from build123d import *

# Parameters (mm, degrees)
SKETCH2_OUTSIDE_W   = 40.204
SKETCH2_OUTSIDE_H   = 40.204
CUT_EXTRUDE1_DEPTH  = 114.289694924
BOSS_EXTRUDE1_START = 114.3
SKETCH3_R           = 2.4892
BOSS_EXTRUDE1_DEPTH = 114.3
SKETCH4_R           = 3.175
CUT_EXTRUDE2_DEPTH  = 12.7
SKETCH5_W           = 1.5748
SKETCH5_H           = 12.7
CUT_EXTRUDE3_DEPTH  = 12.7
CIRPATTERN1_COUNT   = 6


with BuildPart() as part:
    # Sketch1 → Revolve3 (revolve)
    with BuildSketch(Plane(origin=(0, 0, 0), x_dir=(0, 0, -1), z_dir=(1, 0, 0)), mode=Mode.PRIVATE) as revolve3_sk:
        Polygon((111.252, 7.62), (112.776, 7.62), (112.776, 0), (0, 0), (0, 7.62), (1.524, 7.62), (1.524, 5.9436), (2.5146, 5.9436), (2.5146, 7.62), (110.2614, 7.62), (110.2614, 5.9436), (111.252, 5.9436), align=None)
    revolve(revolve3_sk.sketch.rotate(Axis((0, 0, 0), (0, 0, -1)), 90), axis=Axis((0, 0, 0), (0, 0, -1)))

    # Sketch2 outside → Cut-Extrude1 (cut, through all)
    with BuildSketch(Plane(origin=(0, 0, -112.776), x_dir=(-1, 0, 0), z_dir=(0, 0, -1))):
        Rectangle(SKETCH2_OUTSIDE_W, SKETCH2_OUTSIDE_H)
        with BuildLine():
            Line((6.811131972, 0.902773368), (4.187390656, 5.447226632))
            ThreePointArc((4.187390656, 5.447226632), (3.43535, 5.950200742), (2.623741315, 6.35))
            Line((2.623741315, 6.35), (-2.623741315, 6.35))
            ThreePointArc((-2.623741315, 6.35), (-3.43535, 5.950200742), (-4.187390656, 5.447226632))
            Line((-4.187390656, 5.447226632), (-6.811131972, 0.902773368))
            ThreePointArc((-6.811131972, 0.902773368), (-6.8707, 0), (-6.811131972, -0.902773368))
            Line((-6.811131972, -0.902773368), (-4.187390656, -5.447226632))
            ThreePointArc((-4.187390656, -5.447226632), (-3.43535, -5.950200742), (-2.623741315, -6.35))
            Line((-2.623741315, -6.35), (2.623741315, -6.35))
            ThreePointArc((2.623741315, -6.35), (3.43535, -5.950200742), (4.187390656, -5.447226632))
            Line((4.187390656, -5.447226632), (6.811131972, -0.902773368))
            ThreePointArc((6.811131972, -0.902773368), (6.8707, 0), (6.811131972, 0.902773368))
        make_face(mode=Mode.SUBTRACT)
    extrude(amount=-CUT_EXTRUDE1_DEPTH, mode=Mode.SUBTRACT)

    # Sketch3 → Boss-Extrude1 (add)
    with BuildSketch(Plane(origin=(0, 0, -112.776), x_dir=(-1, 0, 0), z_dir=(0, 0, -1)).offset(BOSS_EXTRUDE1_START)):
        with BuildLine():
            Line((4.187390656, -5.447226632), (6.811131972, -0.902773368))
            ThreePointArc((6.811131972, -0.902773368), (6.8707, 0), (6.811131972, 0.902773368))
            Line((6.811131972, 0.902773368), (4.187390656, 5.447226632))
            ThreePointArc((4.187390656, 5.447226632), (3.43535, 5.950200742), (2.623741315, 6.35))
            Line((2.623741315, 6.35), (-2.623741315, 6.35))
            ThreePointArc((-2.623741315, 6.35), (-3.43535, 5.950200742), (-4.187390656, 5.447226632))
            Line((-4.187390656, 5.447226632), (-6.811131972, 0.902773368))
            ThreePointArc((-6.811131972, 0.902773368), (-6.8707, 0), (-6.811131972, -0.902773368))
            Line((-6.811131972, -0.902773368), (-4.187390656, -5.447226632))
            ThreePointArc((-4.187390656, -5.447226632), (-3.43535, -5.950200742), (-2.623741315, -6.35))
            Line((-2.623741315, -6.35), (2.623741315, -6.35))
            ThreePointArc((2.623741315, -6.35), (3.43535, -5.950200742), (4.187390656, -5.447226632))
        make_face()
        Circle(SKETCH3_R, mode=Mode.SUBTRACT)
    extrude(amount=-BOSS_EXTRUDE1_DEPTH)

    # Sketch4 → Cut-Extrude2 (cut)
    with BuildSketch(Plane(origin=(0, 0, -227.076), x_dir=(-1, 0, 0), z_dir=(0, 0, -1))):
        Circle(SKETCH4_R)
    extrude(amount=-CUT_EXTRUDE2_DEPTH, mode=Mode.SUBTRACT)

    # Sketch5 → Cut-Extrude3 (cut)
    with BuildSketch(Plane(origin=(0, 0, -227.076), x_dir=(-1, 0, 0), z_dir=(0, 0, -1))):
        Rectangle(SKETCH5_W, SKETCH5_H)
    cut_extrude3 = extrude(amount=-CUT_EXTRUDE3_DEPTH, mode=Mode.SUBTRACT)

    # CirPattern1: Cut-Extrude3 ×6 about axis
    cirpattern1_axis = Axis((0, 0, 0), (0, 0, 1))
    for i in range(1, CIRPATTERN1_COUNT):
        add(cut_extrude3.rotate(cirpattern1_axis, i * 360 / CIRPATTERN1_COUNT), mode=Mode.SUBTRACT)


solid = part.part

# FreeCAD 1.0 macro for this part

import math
import FreeCAD as App
import Part
import Sketcher
Q = App.Units.Quantity

doc = App.newDocument("Part")
body = doc.addObject("PartDesign::Body", "Body")

# Sketch on YZ plane
sketch1 = body.newObject("Sketcher::SketchObject", "Sketch")
sketch1.AttachmentSupport = (doc.getObject("YZ_Plane"), [""])
sketch1.MapMode = "FlatFace"
sketch1.addGeometry([
    Part.LineSegment(App.Vector(7.62, -112.776, 0), App.Vector(7.62, -111.252, 0)),  # 0
    Part.LineSegment(App.Vector(7.62, -111.252, 0), App.Vector(5.9436, -111.252, 0)),  # 1
    Part.LineSegment(App.Vector(5.9436, -111.252, 0), App.Vector(5.9436, -110.2614, 0)),  # 2
    Part.LineSegment(App.Vector(5.9436, -110.2614, 0), App.Vector(7.62, -110.2614, 0)),  # 3
    Part.LineSegment(App.Vector(7.62, -110.2614, 0), App.Vector(7.62, -2.5146, 0)),  # 4
    Part.LineSegment(App.Vector(7.62, -2.5146, 0), App.Vector(5.9436, -2.5146, 0)),  # 5
    Part.LineSegment(App.Vector(5.9436, -2.5146, 0), App.Vector(5.9436, -1.524, 0)),  # 6
    Part.LineSegment(App.Vector(5.9436, -1.524, 0), App.Vector(7.62, -1.524, 0)),  # 7
    Part.LineSegment(App.Vector(7.62, -1.524, 0), App.Vector(7.62, 0, 0)),  # 8
    Part.LineSegment(App.Vector(7.62, 0, 0), App.Vector(0, 0, 0)),  # 9
    Part.LineSegment(App.Vector(0, 0, 0), App.Vector(0, -112.776, 0)),  # 10
    Part.LineSegment(App.Vector(0, -112.776, 0), App.Vector(7.62, -112.776, 0)),  # 11
], False)
sketch1.addConstraint([
    Sketcher.Constraint("Coincident", 0, 2, 1, 1),
    Sketcher.Constraint("Coincident", 1, 2, 2, 1),
    Sketcher.Constraint("Coincident", 2, 2, 3, 1),
    Sketcher.Constraint("Coincident", 3, 2, 4, 1),
    Sketcher.Constraint("Coincident", 4, 2, 5, 1),
    Sketcher.Constraint("Coincident", 5, 2, 6, 1),
    Sketcher.Constraint("Coincident", 6, 2, 7, 1),
    Sketcher.Constraint("Coincident", 7, 2, 8, 1),
    Sketcher.Constraint("Coincident", 8, 2, 9, 1),
    Sketcher.Constraint("Coincident", 9, 2, 10, 1),
    Sketcher.Constraint("Coincident", 10, 2, 11, 1),
    Sketcher.Constraint("Coincident", 11, 2, 0, 1),
    Sketcher.Constraint("Vertical", 0),
    Sketcher.Constraint("Horizontal", 1),
    Sketcher.Constraint("Vertical", 2),
    Sketcher.Constraint("Horizontal", 3),
    Sketcher.Constraint("Vertical", 4),
    Sketcher.Constraint("Horizontal", 5),
    Sketcher.Constraint("Vertical", 6),
    Sketcher.Constraint("Horizontal", 7),
    Sketcher.Constraint("Vertical", 8),
    Sketcher.Constraint("Horizontal", 9),
    Sketcher.Constraint("Vertical", 10),
    Sketcher.Constraint("Horizontal", 11),
    Sketcher.Constraint("Coincident", 9, 2, -1, 1),
    Sketcher.Constraint("Vertical", 0, 2, 3, 2),
    Sketcher.Constraint("Vertical", 2, 2, 5, 2),
    Sketcher.Constraint("Vertical", 4, 2, 7, 2),
    Sketcher.Constraint("Equal", 2, 6),
    Sketcher.Constraint("Equal", 0, 8),
    Sketcher.Constraint("DistanceX", 9, 2, 9, 1, Q("0.3 in")),
    Sketcher.Constraint("DistanceY", 0, 1, 0, 2, Q("0.06 in")),
    Sketcher.Constraint("DistanceY", 10, 2, 10, 1, Q("4.44 in")),
    Sketcher.Constraint("DistanceX", 1, 2, 1, 1, Q("0.066 in")),
    Sketcher.Constraint("DistanceY", 2, 1, 2, 2, Q("0.039 in")),
])
revolution = body.newObject("PartDesign::Revolution", "Revolution")
revolution.Profile = sketch1
revolution.ReferenceAxis = (sketch1, ["V_Axis"])
revolution.Angle = 360

# Sketch on XY plane
sketch2 = body.newObject("Sketcher::SketchObject", "Sketch001")
sketch2.AttachmentSupport = (doc.getObject("XY_Plane"), [""])
sketch2.MapMode = "FlatFace"
sketch2.AttachmentOffset = App.Placement(App.Vector(0, 0, -4.44 * 25.4), App.Rotation())
sketch2.addGeometry([
    Part.LineSegment(App.Vector(20.102, 20.102, 0), App.Vector(20.102, -20.102, 0)),  # 0
    Part.LineSegment(App.Vector(20.102, -20.102, 0), App.Vector(-20.102, -20.102, 0)),  # 1
    Part.LineSegment(App.Vector(-20.102, -20.102, 0), App.Vector(-20.102, 20.102, 0)),  # 2
    Part.LineSegment(App.Vector(-20.102, 20.102, 0), App.Vector(20.102, 20.102, 0)),  # 3
    Part.LineSegment(App.Vector(-4.187391, 5.447227, 0), App.Vector(-6.811132, 0.902773, 0)),  # 4
    Part.ArcOfCircle(Part.Circle(App.Vector(0, 0, 0), App.Vector(0, 0, 1), 6.8707), math.radians(172.449808), math.radians(187.550192)),  # 5
    Part.LineSegment(App.Vector(-6.811132, -0.902773, 0), App.Vector(-4.187391, -5.447227, 0)),  # 6
    Part.ArcOfCircle(Part.Circle(App.Vector(0, 0, 0), App.Vector(0, 0, 1), 6.8707), math.radians(-127.550193), math.radians(-112.449807)),  # 7
    Part.LineSegment(App.Vector(-2.623741, -6.35, 0), App.Vector(2.623741, -6.35, 0)),  # 8
    Part.ArcOfCircle(Part.Circle(App.Vector(0, 0, 0), App.Vector(0, 0, 1), 6.8707), math.radians(-67.550193), math.radians(-52.449807)),  # 9
    Part.LineSegment(App.Vector(4.187391, -5.447227, 0), App.Vector(6.811132, -0.902773, 0)),  # 10
    Part.ArcOfCircle(Part.Circle(App.Vector(0, 0, 0), App.Vector(0, 0, 1), 6.8707), math.radians(-7.550192), math.radians(7.550192)),  # 11
    Part.LineSegment(App.Vector(6.811132, 0.902773, 0), App.Vector(4.187391, 5.447227, 0)),  # 12
    Part.ArcOfCircle(Part.Circle(App.Vector(0, 0, 0), App.Vector(0, 0, 1), 6.8707), math.radians(52.449807), math.radians(67.550193)),  # 13
    Part.LineSegment(App.Vector(2.623741, 6.35, 0), App.Vector(-2.623741, 6.35, 0)),  # 14
    Part.ArcOfCircle(Part.Circle(App.Vector(0, 0, 0), App.Vector(0, 0, 1), 6.8707), math.radians(112.449807), math.radians(127.550193)),  # 15
], False)
sketch2.addConstraint([
    Sketcher.Constraint("Coincident", 0, 2, 1, 1),
    Sketcher.Constraint("Coincident", 1, 2, 2, 1),
    Sketcher.Constraint("Coincident", 2, 2, 3, 1),
    Sketcher.Constraint("Coincident", 3, 2, 0, 1),
    Sketcher.Constraint("Coincident", 4, 2, 5, 1),
    Sketcher.Constraint("Coincident", 5, 2, 6, 1),
    Sketcher.Constraint("Coincident", 6, 2, 7, 1),
    Sketcher.Constraint("Coincident", 7, 2, 8, 1),
    Sketcher.Constraint("Coincident", 8, 2, 9, 1),
    Sketcher.Constraint("Coincident", 9, 2, 10, 1),
    Sketcher.Constraint("Coincident", 10, 2, 11, 1),
    Sketcher.Constraint("Coincident", 11, 2, 12, 1),
    Sketcher.Constraint("Coincident", 12, 2, 13, 1),
    Sketcher.Constraint("Coincident", 13, 2, 14, 1),
    Sketcher.Constraint("Coincident", 14, 2, 15, 1),
    Sketcher.Constraint("Coincident", 15, 2, 4, 1),
    Sketcher.Constraint("Vertical", 0),
    Sketcher.Constraint("Horizontal", 1),
    Sketcher.Constraint("Vertical", 2),
    Sketcher.Constraint("Horizontal", 3),
    Sketcher.Constraint("Horizontal", 8),
    Sketcher.Constraint("Horizontal", 14),
    Sketcher.Constraint("Coincident", 5, 3, -1, 1),
    Sketcher.Constraint("Coincident", 7, 3, -1, 1),
    Sketcher.Constraint("Coincident", 9, 3, -1, 1),
    Sketcher.Constraint("Coincident", 11, 3, -1, 1),
    Sketcher.Constraint("Coincident", 13, 3, -1, 1),
    Sketcher.Constraint("Coincident", 15, 3, -1, 1),
    Sketcher.Constraint("Equal", 5, 7),
    Sketcher.Constraint("Equal", 7, 9),
    Sketcher.Constraint("Equal", 9, 11),
    Sketcher.Constraint("Equal", 11, 13),
    Sketcher.Constraint("Equal", 13, 15),
    Sketcher.Constraint("Symmetric", 0, 2, 2, 2, -1, 1),
    Sketcher.Constraint("Parallel", 4, 10),
    Sketcher.Constraint("Parallel", 6, 12),
    Sketcher.Constraint("Horizontal", 6, 2, 9, 2),
    Sketcher.Constraint("Horizontal", 5, 2, 10, 2),
    Sketcher.Constraint("Horizontal", 4, 2, 11, 2),
    Sketcher.Constraint("Vertical", 4, 2, 5, 2),
    Sketcher.Constraint("Vertical", 8, 2, 13, 2),
    Sketcher.Constraint("Equal", 3, 0),
    Sketcher.Constraint("Angle", 4, Q("-120 deg")),
    Sketcher.Constraint("Radius", 5, Q("0.2705 in")),
    Sketcher.Constraint("DistanceY", 7, 2, -1, 1, Q("0.25 in")),
    Sketcher.Constraint("DistanceY", 6, 2, 4, 2, Q("0.25 in")),
    Sketcher.Constraint("DistanceX", 1, 2, 1, 1, Q("40.204 mm")),
])
pocket1 = body.newObject("PartDesign::Pocket", "Pocket")
pocket1.Profile = sketch2
pocket1.Type = "ThroughAll"
pocket1.Reversed = True

# Sketch on XY plane
sketch3 = body.newObject("Sketcher::SketchObject", "Sketch002")
sketch3.AttachmentSupport = (doc.getObject("XY_Plane"), [""])
sketch3.MapMode = "FlatFace"
sketch3.AttachmentOffset = App.Placement(App.Vector(0, 0, -8.94 * 25.4), App.Rotation())
sketch3.addGeometry([
    Part.LineSegment(App.Vector(-4.187391, -5.447227, 0), App.Vector(-6.811132, -0.902773, 0)),  # 0
    Part.ArcOfCircle(Part.Circle(App.Vector(0, 0, 0), App.Vector(0, 0, 1), 6.8707), math.radians(172.449808), math.radians(187.550192)),  # 1
    Part.LineSegment(App.Vector(-6.811132, 0.902773, 0), App.Vector(-4.187391, 5.447227, 0)),  # 2
    Part.ArcOfCircle(Part.Circle(App.Vector(0, 0, 0), App.Vector(0, 0, 1), 6.8707), math.radians(112.449807), math.radians(127.550193)),  # 3
    Part.LineSegment(App.Vector(-2.623741, 6.35, 0), App.Vector(2.623741, 6.35, 0)),  # 4
    Part.ArcOfCircle(Part.Circle(App.Vector(0, 0, 0), App.Vector(0, 0, 1), 6.8707), math.radians(52.449807), math.radians(67.550193)),  # 5
    Part.LineSegment(App.Vector(4.187391, 5.447227, 0), App.Vector(6.811132, 0.902773, 0)),  # 6
    Part.ArcOfCircle(Part.Circle(App.Vector(0, 0, 0), App.Vector(0, 0, 1), 6.8707), math.radians(-7.550192), math.radians(7.550192)),  # 7
    Part.LineSegment(App.Vector(6.811132, -0.902773, 0), App.Vector(4.187391, -5.447227, 0)),  # 8
    Part.ArcOfCircle(Part.Circle(App.Vector(0, 0, 0), App.Vector(0, 0, 1), 6.8707), math.radians(-67.550193), math.radians(-52.449807)),  # 9
    Part.LineSegment(App.Vector(2.623741, -6.35, 0), App.Vector(-2.623741, -6.35, 0)),  # 10
    Part.ArcOfCircle(Part.Circle(App.Vector(0, 0, 0), App.Vector(0, 0, 1), 6.8707), math.radians(-127.550193), math.radians(-112.449807)),  # 11
    Part.Circle(App.Vector(0, 0, 0), App.Vector(0, 0, 1), 2.4892),  # 12
], False)
sketch3.addConstraint([
    Sketcher.Constraint("Coincident", 0, 2, 1, 2),
    Sketcher.Constraint("Coincident", 1, 1, 2, 1),
    Sketcher.Constraint("Coincident", 2, 2, 3, 2),
    Sketcher.Constraint("Coincident", 3, 1, 4, 1),
    Sketcher.Constraint("Coincident", 4, 2, 5, 2),
    Sketcher.Constraint("Coincident", 5, 1, 6, 1),
    Sketcher.Constraint("Coincident", 6, 2, 7, 2),
    Sketcher.Constraint("Coincident", 7, 1, 8, 1),
    Sketcher.Constraint("Coincident", 8, 2, 9, 2),
    Sketcher.Constraint("Coincident", 9, 1, 10, 1),
    Sketcher.Constraint("Coincident", 10, 2, 11, 2),
    Sketcher.Constraint("Coincident", 11, 1, 0, 1),
    Sketcher.Constraint("Horizontal", 4),
    Sketcher.Constraint("Horizontal", 10),
    Sketcher.Constraint("Coincident", 1, 3, -1, 1),
    Sketcher.Constraint("Coincident", 3, 3, -1, 1),
    Sketcher.Constraint("Coincident", 5, 3, -1, 1),
    Sketcher.Constraint("Coincident", 7, 3, -1, 1),
    Sketcher.Constraint("Coincident", 9, 3, -1, 1),
    Sketcher.Constraint("Coincident", 11, 3, -1, 1),
    Sketcher.Constraint("Coincident", 12, 3, -1, 1),
    Sketcher.Constraint("Equal", 1, 3),
    Sketcher.Constraint("Equal", 3, 5),
    Sketcher.Constraint("Equal", 5, 7),
    Sketcher.Constraint("Equal", 7, 9),
    Sketcher.Constraint("Equal", 9, 11),
    Sketcher.Constraint("Parallel", 0, 6),
    Sketcher.Constraint("Parallel", 2, 8),
    Sketcher.Constraint("Horizontal", 2, 2, 5, 1),
    Sketcher.Constraint("Horizontal", 1, 1, 6, 2),
    Sketcher.Constraint("Horizontal", 0, 2, 7, 1),
    Sketcher.Constraint("Vertical", 0, 2, 1, 1),
    Sketcher.Constraint("Vertical", 4, 2, 9, 1),
    Sketcher.Constraint("Diameter", 12, Q("0.196 in")),
    Sketcher.Constraint("Angle", 0, Q("120 deg")),
    Sketcher.Constraint("Radius", 1, Q("0.2705 in")),
    Sketcher.Constraint("DistanceY", -1, 1, 3, 1, Q("0.25 in")),
    Sketcher.Constraint("DistanceX", 0, 2, -1, 1, Q("6.811132 mm")),
])
pad1 = body.newObject("PartDesign::Pad", "Pad")
pad1.Profile = sketch3
pad1.Length = Q("4.5 in")

# Sketch on XY plane
sketch4 = body.newObject("Sketcher::SketchObject", "Sketch003")
sketch4.AttachmentSupport = (doc.getObject("XY_Plane"), [""])
sketch4.MapMode = "FlatFace"
sketch4.AttachmentOffset = App.Placement(App.Vector(0, 0, -8.94 * 25.4), App.Rotation())
sketch4.addGeometry(Part.Circle(App.Vector(0, 0, 0), App.Vector(0, 0, 1), 3.175), False)
sketch4.addConstraint([
    Sketcher.Constraint("Coincident", 0, 3, -1, 1),
    Sketcher.Constraint("Diameter", 0, Q("0.25 in")),
])
pocket2 = body.newObject("PartDesign::Pocket", "Pocket001")
pocket2.Profile = sketch4
pocket2.Length = Q("0.5 in")
pocket2.Reversed = True

# Sketch on XY plane
sketch5 = body.newObject("Sketcher::SketchObject", "Sketch004")
sketch5.AttachmentSupport = (doc.getObject("XY_Plane"), [""])
sketch5.MapMode = "FlatFace"
sketch5.AttachmentOffset = App.Placement(App.Vector(0, 0, -8.94 * 25.4), App.Rotation())
sketch5.addGeometry([
    Part.LineSegment(App.Vector(0.7874, 6.35, 0), App.Vector(0.7874, -6.35, 0)),
    Part.LineSegment(App.Vector(0.7874, -6.35, 0), App.Vector(-0.7874, -6.35, 0)),
    Part.LineSegment(App.Vector(-0.7874, -6.35, 0), App.Vector(-0.7874, 6.35, 0)),
    Part.LineSegment(App.Vector(-0.7874, 6.35, 0), App.Vector(0.7874, 6.35, 0)),
], False)
sketch5.addConstraint([
    Sketcher.Constraint("Coincident", 0, 2, 1, 1),
    Sketcher.Constraint("Coincident", 1, 2, 2, 1),
    Sketcher.Constraint("Coincident", 2, 2, 3, 1),
    Sketcher.Constraint("Coincident", 3, 2, 0, 1),
    Sketcher.Constraint("Vertical", 0),
    Sketcher.Constraint("Horizontal", 1),
    Sketcher.Constraint("Vertical", 2),
    Sketcher.Constraint("Horizontal", 3),
    Sketcher.Constraint("Symmetric", 0, 2, 2, 2, -1, 1),
    Sketcher.Constraint("DistanceY", 0, 2, 0, 1, Q("0.5 in")),
    Sketcher.Constraint("DistanceX", 1, 2, 1, 1, Q("0.062 in")),
])
pocket3 = body.newObject("PartDesign::Pocket", "Pocket002")
pocket3.Profile = sketch5
pocket3.Length = Q("0.5 in")
pocket3.Reversed = True
doc.recompute()

polarpattern = body.newObject("PartDesign::PolarPattern", "PolarPattern")
polarpattern.Originals = [pocket3]
polarpattern.Axis = (doc.getObject("Z_Axis"), [""])
polarpattern.Angle = 360
polarpattern.Occurrences = 6
body.Tip = polarpattern

doc.recompute()
